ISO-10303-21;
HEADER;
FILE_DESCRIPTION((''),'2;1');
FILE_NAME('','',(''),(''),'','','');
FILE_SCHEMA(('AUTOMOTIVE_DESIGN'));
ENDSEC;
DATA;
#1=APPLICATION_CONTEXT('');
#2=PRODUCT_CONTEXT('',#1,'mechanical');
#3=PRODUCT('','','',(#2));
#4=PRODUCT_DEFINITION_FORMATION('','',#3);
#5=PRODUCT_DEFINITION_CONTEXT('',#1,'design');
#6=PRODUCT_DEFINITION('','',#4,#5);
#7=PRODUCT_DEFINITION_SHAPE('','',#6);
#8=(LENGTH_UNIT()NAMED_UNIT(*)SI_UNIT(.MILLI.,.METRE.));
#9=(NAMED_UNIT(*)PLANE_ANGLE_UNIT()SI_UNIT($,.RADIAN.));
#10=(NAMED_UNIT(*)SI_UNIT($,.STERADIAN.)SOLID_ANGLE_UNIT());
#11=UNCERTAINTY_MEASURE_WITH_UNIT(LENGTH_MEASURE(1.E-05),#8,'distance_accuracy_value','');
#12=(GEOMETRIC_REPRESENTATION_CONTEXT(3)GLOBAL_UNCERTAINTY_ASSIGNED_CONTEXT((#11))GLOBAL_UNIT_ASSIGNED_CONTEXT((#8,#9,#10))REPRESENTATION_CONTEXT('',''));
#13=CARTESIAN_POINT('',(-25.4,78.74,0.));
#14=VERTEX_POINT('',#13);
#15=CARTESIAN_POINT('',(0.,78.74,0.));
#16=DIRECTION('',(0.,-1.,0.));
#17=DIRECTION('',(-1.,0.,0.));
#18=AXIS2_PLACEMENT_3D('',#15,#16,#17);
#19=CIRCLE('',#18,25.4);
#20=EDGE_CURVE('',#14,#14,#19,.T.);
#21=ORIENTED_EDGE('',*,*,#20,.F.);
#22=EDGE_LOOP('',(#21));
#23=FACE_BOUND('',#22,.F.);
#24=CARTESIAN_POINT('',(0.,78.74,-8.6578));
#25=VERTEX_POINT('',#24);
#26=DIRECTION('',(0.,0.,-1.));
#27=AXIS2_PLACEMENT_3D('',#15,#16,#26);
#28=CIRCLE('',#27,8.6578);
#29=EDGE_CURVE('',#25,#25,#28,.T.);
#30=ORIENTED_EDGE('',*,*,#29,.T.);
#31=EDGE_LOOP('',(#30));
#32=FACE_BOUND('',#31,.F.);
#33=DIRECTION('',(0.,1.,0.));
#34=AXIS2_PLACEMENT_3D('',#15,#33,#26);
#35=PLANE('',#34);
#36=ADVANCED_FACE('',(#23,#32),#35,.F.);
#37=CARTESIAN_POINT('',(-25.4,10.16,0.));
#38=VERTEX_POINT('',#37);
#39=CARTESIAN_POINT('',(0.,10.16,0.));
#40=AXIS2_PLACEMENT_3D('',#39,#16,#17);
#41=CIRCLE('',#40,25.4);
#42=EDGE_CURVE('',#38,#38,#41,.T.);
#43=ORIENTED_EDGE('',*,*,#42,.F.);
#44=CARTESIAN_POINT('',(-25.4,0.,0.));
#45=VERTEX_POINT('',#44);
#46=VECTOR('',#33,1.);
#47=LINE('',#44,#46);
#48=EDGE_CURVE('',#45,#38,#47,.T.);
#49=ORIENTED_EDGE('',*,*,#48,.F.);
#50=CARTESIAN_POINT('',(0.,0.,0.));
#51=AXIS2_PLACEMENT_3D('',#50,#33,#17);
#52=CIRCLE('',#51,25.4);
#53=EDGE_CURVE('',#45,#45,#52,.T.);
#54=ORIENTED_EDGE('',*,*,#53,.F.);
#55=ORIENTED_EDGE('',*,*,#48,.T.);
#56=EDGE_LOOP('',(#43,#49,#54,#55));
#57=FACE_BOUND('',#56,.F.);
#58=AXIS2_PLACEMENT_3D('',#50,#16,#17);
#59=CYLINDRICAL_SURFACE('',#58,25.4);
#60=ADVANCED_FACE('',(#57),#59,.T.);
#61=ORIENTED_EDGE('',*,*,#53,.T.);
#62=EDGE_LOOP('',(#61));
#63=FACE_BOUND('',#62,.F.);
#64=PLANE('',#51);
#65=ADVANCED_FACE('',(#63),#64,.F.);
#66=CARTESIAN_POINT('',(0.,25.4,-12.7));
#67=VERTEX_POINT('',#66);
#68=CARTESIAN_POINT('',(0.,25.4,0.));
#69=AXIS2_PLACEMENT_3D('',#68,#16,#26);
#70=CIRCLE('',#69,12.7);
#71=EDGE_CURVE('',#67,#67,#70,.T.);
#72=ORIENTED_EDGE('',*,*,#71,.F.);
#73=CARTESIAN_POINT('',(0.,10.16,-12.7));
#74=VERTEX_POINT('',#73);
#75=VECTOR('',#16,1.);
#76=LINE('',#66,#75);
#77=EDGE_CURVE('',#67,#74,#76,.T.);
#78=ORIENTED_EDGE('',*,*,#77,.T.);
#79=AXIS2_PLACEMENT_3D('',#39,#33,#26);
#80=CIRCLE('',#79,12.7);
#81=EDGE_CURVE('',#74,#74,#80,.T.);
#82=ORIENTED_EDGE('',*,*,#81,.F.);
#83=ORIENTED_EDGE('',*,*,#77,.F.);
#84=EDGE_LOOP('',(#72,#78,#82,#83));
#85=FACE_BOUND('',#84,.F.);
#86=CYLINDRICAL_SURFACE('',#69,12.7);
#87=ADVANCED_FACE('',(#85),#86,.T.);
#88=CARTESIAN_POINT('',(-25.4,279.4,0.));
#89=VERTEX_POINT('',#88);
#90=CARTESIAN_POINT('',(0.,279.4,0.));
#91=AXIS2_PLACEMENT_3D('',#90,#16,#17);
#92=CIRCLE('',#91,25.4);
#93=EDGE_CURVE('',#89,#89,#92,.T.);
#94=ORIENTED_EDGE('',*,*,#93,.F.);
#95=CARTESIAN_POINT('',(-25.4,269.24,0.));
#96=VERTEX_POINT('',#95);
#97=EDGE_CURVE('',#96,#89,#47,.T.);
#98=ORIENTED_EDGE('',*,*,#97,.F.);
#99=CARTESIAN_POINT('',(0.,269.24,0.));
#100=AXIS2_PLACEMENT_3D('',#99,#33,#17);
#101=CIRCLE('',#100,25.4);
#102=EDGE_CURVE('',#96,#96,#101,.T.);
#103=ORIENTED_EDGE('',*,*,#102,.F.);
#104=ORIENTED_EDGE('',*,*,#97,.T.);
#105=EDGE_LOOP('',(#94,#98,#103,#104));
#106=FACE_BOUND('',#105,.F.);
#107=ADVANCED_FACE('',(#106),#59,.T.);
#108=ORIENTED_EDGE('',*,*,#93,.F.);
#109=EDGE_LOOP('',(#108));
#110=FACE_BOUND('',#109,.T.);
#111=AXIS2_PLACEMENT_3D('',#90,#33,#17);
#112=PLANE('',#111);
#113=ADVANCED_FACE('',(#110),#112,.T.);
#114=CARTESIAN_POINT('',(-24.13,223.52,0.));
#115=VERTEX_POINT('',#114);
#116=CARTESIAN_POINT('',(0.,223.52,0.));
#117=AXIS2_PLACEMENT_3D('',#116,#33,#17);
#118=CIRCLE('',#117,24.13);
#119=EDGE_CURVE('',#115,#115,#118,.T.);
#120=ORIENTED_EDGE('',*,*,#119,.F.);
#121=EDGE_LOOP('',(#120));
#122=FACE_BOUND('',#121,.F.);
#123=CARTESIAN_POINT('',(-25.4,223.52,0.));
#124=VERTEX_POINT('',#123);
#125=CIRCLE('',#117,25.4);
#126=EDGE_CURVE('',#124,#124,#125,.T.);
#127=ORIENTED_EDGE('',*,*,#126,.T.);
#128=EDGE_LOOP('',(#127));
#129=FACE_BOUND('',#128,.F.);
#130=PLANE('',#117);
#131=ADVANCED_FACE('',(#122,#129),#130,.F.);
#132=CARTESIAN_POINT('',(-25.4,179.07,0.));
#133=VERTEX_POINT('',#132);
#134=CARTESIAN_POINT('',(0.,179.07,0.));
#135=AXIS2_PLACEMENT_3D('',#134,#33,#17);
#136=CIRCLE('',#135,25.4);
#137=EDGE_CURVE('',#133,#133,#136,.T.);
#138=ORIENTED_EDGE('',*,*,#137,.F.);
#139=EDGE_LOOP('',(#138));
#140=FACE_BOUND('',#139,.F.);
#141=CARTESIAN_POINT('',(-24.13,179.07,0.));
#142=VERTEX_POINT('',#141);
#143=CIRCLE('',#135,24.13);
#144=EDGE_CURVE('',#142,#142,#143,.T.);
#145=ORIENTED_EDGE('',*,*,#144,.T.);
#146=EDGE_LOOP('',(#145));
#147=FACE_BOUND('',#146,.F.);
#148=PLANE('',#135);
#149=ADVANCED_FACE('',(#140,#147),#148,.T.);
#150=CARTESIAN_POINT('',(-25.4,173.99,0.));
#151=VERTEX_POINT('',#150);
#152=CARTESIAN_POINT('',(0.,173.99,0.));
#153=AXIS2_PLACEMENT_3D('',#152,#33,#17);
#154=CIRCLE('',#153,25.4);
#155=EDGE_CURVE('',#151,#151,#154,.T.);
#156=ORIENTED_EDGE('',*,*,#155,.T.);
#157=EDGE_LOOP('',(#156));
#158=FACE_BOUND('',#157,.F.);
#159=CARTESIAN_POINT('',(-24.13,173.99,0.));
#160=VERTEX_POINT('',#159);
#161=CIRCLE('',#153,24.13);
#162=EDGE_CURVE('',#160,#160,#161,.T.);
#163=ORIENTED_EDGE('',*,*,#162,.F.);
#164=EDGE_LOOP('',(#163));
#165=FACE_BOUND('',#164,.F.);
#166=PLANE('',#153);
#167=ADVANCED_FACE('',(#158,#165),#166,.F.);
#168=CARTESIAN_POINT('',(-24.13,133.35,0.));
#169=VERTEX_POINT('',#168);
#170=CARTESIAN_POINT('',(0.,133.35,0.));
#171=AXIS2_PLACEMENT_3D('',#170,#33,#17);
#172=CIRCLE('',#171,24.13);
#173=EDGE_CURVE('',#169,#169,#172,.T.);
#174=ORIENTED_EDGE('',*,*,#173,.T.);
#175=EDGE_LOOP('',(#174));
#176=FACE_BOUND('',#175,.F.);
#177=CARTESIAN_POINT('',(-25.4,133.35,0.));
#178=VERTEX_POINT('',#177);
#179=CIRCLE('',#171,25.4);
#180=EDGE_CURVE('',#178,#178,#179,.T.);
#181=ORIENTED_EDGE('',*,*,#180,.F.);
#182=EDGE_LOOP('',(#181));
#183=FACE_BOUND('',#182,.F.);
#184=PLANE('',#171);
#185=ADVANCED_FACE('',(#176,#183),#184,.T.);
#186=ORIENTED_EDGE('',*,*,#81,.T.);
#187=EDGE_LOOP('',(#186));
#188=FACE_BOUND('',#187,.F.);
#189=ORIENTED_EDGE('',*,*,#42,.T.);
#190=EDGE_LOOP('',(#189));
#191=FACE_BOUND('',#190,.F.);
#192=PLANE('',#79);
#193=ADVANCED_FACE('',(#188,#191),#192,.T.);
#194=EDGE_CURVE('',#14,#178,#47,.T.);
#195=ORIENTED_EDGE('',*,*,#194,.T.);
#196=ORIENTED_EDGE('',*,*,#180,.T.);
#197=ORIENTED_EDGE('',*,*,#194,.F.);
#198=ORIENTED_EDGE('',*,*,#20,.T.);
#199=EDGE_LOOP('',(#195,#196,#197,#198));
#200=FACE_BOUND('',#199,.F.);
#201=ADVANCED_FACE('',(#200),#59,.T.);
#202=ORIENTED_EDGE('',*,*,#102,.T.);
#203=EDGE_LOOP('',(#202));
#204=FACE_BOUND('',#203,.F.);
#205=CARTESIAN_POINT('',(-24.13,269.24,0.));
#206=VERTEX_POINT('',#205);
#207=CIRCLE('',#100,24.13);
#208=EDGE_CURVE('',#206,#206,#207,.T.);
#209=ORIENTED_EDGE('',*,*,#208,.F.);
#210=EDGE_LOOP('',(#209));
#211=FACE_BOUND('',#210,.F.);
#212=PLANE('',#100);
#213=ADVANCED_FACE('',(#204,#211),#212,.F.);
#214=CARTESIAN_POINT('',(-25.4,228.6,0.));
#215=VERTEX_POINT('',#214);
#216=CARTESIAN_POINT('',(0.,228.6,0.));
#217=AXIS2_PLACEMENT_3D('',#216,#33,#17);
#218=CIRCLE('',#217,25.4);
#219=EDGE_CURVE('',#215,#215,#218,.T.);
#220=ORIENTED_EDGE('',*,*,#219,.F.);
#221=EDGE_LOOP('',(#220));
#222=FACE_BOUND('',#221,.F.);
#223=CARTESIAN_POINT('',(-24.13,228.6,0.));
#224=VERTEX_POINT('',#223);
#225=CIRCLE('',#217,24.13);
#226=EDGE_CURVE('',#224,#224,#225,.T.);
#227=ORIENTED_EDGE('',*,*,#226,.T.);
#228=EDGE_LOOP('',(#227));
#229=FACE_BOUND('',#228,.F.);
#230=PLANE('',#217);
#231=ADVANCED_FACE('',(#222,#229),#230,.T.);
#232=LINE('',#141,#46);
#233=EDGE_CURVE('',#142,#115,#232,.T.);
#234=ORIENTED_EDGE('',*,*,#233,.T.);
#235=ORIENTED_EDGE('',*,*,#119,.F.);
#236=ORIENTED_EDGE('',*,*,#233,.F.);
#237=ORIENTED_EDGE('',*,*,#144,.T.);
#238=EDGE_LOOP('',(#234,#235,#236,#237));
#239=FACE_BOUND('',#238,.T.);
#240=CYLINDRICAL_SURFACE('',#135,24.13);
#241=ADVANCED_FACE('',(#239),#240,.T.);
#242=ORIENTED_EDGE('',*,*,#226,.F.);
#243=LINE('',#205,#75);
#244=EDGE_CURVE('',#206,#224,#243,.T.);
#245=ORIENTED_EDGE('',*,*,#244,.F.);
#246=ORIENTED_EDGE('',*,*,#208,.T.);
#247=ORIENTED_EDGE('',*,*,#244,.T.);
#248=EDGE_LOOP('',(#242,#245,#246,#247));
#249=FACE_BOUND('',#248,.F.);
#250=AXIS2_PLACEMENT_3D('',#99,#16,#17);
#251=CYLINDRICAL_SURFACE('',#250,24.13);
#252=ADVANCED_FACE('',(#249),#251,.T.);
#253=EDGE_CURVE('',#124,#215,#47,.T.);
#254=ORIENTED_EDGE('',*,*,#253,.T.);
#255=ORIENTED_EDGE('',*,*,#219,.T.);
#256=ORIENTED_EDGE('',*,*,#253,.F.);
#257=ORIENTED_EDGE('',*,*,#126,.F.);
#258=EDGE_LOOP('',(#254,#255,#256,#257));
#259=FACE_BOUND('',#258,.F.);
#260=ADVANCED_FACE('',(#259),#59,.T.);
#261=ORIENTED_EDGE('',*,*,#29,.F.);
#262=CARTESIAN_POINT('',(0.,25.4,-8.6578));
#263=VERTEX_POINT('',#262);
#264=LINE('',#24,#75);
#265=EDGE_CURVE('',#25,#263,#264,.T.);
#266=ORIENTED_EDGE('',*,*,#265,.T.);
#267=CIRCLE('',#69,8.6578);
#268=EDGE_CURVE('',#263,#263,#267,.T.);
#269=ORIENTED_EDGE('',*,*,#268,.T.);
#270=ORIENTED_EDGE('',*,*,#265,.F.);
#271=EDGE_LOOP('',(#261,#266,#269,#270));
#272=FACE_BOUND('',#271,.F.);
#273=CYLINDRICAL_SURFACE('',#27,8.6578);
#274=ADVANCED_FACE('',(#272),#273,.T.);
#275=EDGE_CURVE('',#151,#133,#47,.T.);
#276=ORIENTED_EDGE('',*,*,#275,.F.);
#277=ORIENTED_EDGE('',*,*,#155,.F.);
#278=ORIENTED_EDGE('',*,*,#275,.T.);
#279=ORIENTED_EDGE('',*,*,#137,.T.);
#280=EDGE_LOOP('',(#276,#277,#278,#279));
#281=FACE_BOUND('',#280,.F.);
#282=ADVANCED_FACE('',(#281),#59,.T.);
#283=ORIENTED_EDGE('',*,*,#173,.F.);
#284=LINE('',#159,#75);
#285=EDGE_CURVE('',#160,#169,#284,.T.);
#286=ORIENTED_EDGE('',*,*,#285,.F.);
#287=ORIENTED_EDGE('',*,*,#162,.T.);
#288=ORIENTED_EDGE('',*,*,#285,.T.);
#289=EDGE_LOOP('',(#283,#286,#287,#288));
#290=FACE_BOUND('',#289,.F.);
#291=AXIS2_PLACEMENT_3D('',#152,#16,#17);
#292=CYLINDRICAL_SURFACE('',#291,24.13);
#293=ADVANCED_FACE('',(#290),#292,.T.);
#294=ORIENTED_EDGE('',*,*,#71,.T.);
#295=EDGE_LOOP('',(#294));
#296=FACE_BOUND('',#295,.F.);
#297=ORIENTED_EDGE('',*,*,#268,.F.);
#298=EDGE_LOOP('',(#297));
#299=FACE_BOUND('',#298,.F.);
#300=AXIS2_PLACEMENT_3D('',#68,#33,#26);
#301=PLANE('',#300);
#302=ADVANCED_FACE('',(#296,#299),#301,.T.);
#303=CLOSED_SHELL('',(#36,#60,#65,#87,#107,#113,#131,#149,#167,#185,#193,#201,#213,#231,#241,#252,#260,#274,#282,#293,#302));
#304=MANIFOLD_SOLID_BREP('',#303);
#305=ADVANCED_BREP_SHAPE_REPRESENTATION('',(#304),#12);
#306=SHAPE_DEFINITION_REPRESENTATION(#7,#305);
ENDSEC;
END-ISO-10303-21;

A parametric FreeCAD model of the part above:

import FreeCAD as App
import Part
import Sketcher
from FreeCAD import Vector
Q = App.Units.Quantity

doc = App.newDocument("Part")
params = doc.addObject("Spreadsheet::Sheet", "Params")
for row, (alias, value) in enumerate([
    ("sketch1_diameter", "2 in"),
    ("pad1_length", "11 in"),
    ("sketch2_width", "2.1 in"),
    ("groove_angle", "360 deg"),
    ("sketch3_height", "1.6 in"),
    ("sketch3_width", "0.05 in"),
    ("sketch3_height2", "1.75 in"),
    ("groove2_angle", "360 deg"),
], start=1):
    params.set(f"A{row}", alias)
    params.set(f"B{row}", "=" + value)
    params.setAlias(f"B{row}", alias)

body = doc.addObject("PartDesign::Body", "Body")

# Sketch on XZ plane
sketch1 = body.newObject("Sketcher::SketchObject", "Sketch")
sketch1.AttachmentSupport = (doc.getObject("XZ_Plane"), [""])
sketch1.MapMode = "FlatFace"
sketch1.addGeometry(Part.Circle(Vector(0, 0, 0), Vector(0, 0, 1), 25.4), False)
sketch1.addConstraint(Sketcher.Constraint("Coincident", 0, 3, -1, 1))
sketch1.addConstraint(Sketcher.Constraint("Diameter", 0, Q("2 in")))
sketch1.setExpression("Constraints[1]", "Params.sketch1_diameter")
pad1 = body.newObject("PartDesign::Pad", "Pad")
pad1.Profile = sketch1
pad1.setExpression("Length", "Params.pad1_length")
pad1.Reversed = True

# Sketch on YZ plane
sketch2 = body.newObject("Sketcher::SketchObject", "Sketch001")
sketch2.AttachmentSupport = (doc.getObject("YZ_Plane"), [""])
sketch2.MapMode = "FlatFace"
sketch2.addGeometry(Part.LineSegment(Vector(78.74, -25.4, 0), Vector(78.74, -8.6578, 0)), False)
sketch2.addGeometry(Part.LineSegment(Vector(78.74, -8.6578, 0), Vector(25.4, -8.6578, 0)), False)
sketch2.addGeometry(Part.LineSegment(Vector(25.4, -8.6578, 0), Vector(25.4, -12.7, 0)), False)
sketch2.addGeometry(Part.LineSegment(Vector(25.4, -12.7, 0), Vector(10.16, -12.7, 0)), False)
sketch2.addGeometry(Part.LineSegment(Vector(10.16, -12.7, 0), Vector(10.16, -25.4, 0)), False)
sketch2.addGeometry(Part.LineSegment(Vector(10.16, -25.4, 0), Vector(78.74, -25.4, 0)), False)
sketch2.addGeometry(Part.LineSegment(Vector(25.4, 8.6578, 0), Vector(78.74, 8.6578, 0)), False)
sketch2.addGeometry(Part.LineSegment(Vector(78.74, 8.6578, 0), Vector(78.74, 25.4, 0)), False)
sketch2.addGeometry(Part.LineSegment(Vector(78.74, 25.4, 0), Vector(10.16, 25.4, 0)), False)
sketch2.addGeometry(Part.LineSegment(Vector(10.16, 25.4, 0), Vector(10.16, 12.7, 0)), False)
sketch2.addGeometry(Part.LineSegment(Vector(10.16, 12.7, 0), Vector(25.4, 12.7, 0)), False)
sketch2.addGeometry(Part.LineSegment(Vector(25.4, 12.7, 0), Vector(25.4, 8.6578, 0)), False)
sketch2.addConstraint(Sketcher.Constraint("Coincident", 0, 2, 1, 1))
sketch2.addConstraint(Sketcher.Constraint("Coincident", 1, 2, 2, 1))
sketch2.addConstraint(Sketcher.Constraint("Coincident", 2, 2, 3, 1))
sketch2.addConstraint(Sketcher.Constraint("Coincident", 3, 2, 4, 1))
sketch2.addConstraint(Sketcher.Constraint("Coincident", 4, 2, 5, 1))
sketch2.addConstraint(Sketcher.Constraint("Coincident", 5, 2, 0, 1))
sketch2.addConstraint(Sketcher.Constraint("Coincident", 6, 2, 7, 1))
sketch2.addConstraint(Sketcher.Constraint("Coincident", 7, 2, 8, 1))
sketch2.addConstraint(Sketcher.Constraint("Coincident", 8, 2, 9, 1))
sketch2.addConstraint(Sketcher.Constraint("Coincident", 9, 2, 10, 1))
sketch2.addConstraint(Sketcher.Constraint("Coincident", 10, 2, 11, 1))
sketch2.addConstraint(Sketcher.Constraint("Coincident", 11, 2, 6, 1))
sketch2.addConstraint(Sketcher.Constraint("Vertical", 0))
sketch2.addConstraint(Sketcher.Constraint("Horizontal", 1))
sketch2.addConstraint(Sketcher.Constraint("Vertical", 2))
sketch2.addConstraint(Sketcher.Constraint("Horizontal", 3))
sketch2.addConstraint(Sketcher.Constraint("Vertical", 4))
sketch2.addConstraint(Sketcher.Constraint("Horizontal", 5))
sketch2.addConstraint(Sketcher.Constraint("Horizontal", 6))
sketch2.addConstraint(Sketcher.Constraint("Vertical", 7))
sketch2.addConstraint(Sketcher.Constraint("Horizontal", 8))
sketch2.addConstraint(Sketcher.Constraint("Vertical", 9))
sketch2.addConstraint(Sketcher.Constraint("Horizontal", 10))
sketch2.addConstraint(Sketcher.Constraint("Vertical", 11))
sketch2.addConstraint(Sketcher.Constraint("Symmetric", 0, 2, 6, 2, -1))
sketch2.addConstraint(Sketcher.Constraint("Symmetric", 4, 2, 8, 2, -1))
sketch2.addConstraint(Sketcher.Constraint("Symmetric", 2, 2, 10, 2, -1))
sketch2.addConstraint(Sketcher.Constraint("DistanceX", -1, 1, 1, 2, Q("1 in")))
sketch2.addConstraint(Sketcher.Constraint("DistanceY", 4, 2, -1, 1, Q("1 in")))
sketch2.addConstraint(Sketcher.Constraint("DistanceY", 3, 2, 9, 2, Q("1 in")))
sketch2.addConstraint(Sketcher.Constraint("DistanceX", -1, 1, 3, 2, Q("0.4 in")))
sketch2.addConstraint(Sketcher.Constraint("DistanceX", 1, 2, 1, 1, Q("2.1 in")))
sketch2.addConstraint(Sketcher.Constraint("DistanceY", 0, 1, 0, 2, 16.7422))
sketch2.setExpression("Constraints[31]", "Params.sketch2_width")
groove = body.newObject("PartDesign::Groove", "Groove")
groove.Profile = sketch2
groove.ReferenceAxis = (sketch2, ["H_Axis"])
groove.setExpression("Angle", "Params.groove_angle")

# Sketch on XY plane
sketch3 = body.newObject("Sketcher::SketchObject", "Sketch002")
sketch3.AttachmentSupport = (doc.getObject("XY_Plane"), [""])
sketch3.MapMode = "FlatFace"
sketch3.addGeometry(Part.LineSegment(Vector(-25.4, 173.99, 0), Vector(-25.4, 133.35, 0)), False)
sketch3.addGeometry(Part.LineSegment(Vector(-25.4, 133.35, 0), Vector(-24.13, 133.35, 0)), False)
sketch3.addGeometry(Part.LineSegment(Vector(-24.13, 133.35, 0), Vector(-24.13, 173.99, 0)), False)
sketch3.addGeometry(Part.LineSegment(Vector(-24.13, 173.99, 0), Vector(-25.4, 173.99, 0)), False)
sketch3.addGeometry(Part.LineSegment(Vector(-25.4, 223.52, 0), Vector(-25.4, 179.07, 0)), False)
sketch3.addGeometry(Part.LineSegment(Vector(-25.4, 179.07, 0), Vector(-24.13, 179.07, 0)), False)
sketch3.addGeometry(Part.LineSegment(Vector(-24.13, 179.07, 0), Vector(-24.13, 223.52, 0)), False)
sketch3.addGeometry(Part.LineSegment(Vector(-24.13, 223.52, 0), Vector(-25.4, 223.52, 0)), False)
sketch3.addGeometry(Part.LineSegment(Vector(-25.4, 269.24, 0), Vector(-25.4, 228.6, 0)), False)
sketch3.addGeometry(Part.LineSegment(Vector(-25.4, 228.6, 0), Vector(-24.13, 228.6, 0)), False)
sketch3.addGeometry(Part.LineSegment(Vector(-24.13, 228.6, 0), Vector(-24.13, 269.24, 0)), False)
sketch3.addGeometry(Part.LineSegment(Vector(-24.13, 269.24, 0), Vector(-25.4, 269.24, 0)), False)
sketch3.addConstraint(Sketcher.Constraint("Coincident", 0, 2, 1, 1))
sketch3.addConstraint(Sketcher.Constraint("Coincident", 1, 2, 2, 1))
sketch3.addConstraint(Sketcher.Constraint("Coincident", 2, 2, 3, 1))
sketch3.addConstraint(Sketcher.Constraint("Coincident", 3, 2, 0, 1))
sketch3.addConstraint(Sketcher.Constraint("Coincident", 4, 2, 5, 1))
sketch3.addConstraint(Sketcher.Constraint("Coincident", 5, 2, 6, 1))
sketch3.addConstraint(Sketcher.Constraint("Coincident", 6, 2, 7, 1))
sketch3.addConstraint(Sketcher.Constraint("Coincident", 7, 2, 4, 1))
sketch3.addConstraint(Sketcher.Constraint("Coincident", 8, 2, 9, 1))
sketch3.addConstraint(Sketcher.Constraint("Coincident", 9, 2, 10, 1))
sketch3.addConstraint(Sketcher.Constraint("Coincident", 10, 2, 11, 1))
sketch3.addConstraint(Sketcher.Constraint("Coincident", 11, 2, 8, 1))
sketch3.addConstraint(Sketcher.Constraint("Vertical", 0))
sketch3.addConstraint(Sketcher.Constraint("Horizontal", 1))
sketch3.addConstraint(Sketcher.Constraint("Vertical", 2))
sketch3.addConstraint(Sketcher.Constraint("Horizontal", 3))
sketch3.addConstraint(Sketcher.Constraint("Vertical", 4))
sketch3.addConstraint(Sketcher.Constraint("Horizontal", 5))
sketch3.addConstraint(Sketcher.Constraint("Vertical", 6))
sketch3.addConstraint(Sketcher.Constraint("Horizontal", 7))
sketch3.addConstraint(Sketcher.Constraint("Vertical", 8))
sketch3.addConstraint(Sketcher.Constraint("Horizontal", 9))
sketch3.addConstraint(Sketcher.Constraint("Vertical", 10))
sketch3.addConstraint(Sketcher.Constraint("Horizontal", 11))
sketch3.addConstraint(Sketcher.Constraint("Vertical", 3, 2, 4, 2))
sketch3.addConstraint(Sketcher.Constraint("Vertical", 2, 2, 5, 2))
sketch3.addConstraint(Sketcher.Constraint("Vertical", 7, 2, 8, 2))
sketch3.addConstraint(Sketcher.Constraint("Vertical", 6, 2, 9, 2))
sketch3.addConstraint(Sketcher.Constraint("Equal", 2, 8))
sketch3.addConstraint(Sketcher.Constraint("DistanceY", 0, 2, 0, 1, Q("1.6 in")))
sketch3.addConstraint(Sketcher.Constraint("DistanceX", 1, 1, 1, 2, Q("0.05 in")))
sketch3.addConstraint(Sketcher.Constraint("DistanceY", 3, 2, 4, 2, Q("0.2 in")))
sketch3.addConstraint(Sketcher.Constraint("DistanceY", 7, 2, 8, 2, Q("0.2 in")))
sketch3.addConstraint(Sketcher.Constraint("DistanceX", 1, 2, -1, 1, Q("0.95 in")))
sketch3.addConstraint(Sketcher.Constraint("DistanceY", -1, 1, 8, 2, Q("9 in")))
sketch3.addConstraint(Sketcher.Constraint("DistanceY", 4, 2, 4, 1, Q("1.75 in")))
sketch3.setExpression("Constraints[29]", "Params.sketch3_height")
sketch3.setExpression("Constraints[30]", "Params.sketch3_width")
sketch3.setExpression("Constraints[35]", "Params.sketch3_height2")
groove2 = body.newObject("PartDesign::Groove", "Groove001")
groove2.Profile = sketch3
groove2.ReferenceAxis = (sketch3, ["V_Axis"])
groove2.setExpression("Angle", "Params.groove2_angle")

doc.recompute()
